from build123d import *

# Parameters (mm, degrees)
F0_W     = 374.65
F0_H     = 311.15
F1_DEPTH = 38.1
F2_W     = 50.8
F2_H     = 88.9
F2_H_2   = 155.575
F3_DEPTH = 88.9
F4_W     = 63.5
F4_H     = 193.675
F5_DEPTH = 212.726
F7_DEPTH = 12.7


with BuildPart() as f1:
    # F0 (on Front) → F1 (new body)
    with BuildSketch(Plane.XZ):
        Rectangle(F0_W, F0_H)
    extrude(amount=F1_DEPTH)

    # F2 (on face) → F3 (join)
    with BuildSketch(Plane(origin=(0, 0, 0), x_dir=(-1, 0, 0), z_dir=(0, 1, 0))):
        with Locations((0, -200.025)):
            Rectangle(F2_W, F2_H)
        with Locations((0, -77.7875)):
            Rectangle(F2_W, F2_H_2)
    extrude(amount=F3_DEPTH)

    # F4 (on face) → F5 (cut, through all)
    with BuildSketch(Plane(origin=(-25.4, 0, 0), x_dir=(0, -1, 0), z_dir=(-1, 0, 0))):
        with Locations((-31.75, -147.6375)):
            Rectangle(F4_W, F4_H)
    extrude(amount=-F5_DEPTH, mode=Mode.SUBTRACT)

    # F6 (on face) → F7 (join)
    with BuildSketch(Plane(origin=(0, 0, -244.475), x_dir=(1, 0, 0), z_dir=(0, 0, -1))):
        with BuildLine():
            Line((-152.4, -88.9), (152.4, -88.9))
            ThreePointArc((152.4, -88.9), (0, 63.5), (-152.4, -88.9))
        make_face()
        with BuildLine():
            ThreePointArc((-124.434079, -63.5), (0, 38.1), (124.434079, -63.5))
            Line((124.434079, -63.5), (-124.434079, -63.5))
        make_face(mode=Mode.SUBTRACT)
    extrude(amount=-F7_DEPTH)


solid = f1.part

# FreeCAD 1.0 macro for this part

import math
import FreeCAD as App
import Part
import Sketcher
from FreeCAD import Vector
Q = App.Units.Quantity


def add_polygon(sketch, points):
    """Adds a closed chain of lines whose ends are joined by coincident constraints."""
    first, n = sketch.GeometryCount, len(points)
    for a, b in zip(points, points[1:] + points[:1]):
        sketch.addGeometry(Part.LineSegment(App.Vector(*a, 0), App.Vector(*b, 0)), False)
    for i in range(n):
        sketch.addConstraint(Sketcher.Constraint("Coincident", first + i, 2, first + (i + 1) % n, 1))

doc = App.newDocument("Part")
body = doc.addObject("PartDesign::Body", "Body")

sketch1 = body.newObject("Sketcher::SketchObject", "Sketch")
sketch1.AttachmentSupport = (doc.getObject("XZ_Plane"), [""])
sketch1.MapMode = "FlatFace"
add_polygon(sketch1, [(-187.325, 155.575), (-187.325, -155.575), (187.325, -155.575), (187.325, 155.575)])
sketch1.addConstraint(Sketcher.Constraint("Vertical", 0))
sketch1.addConstraint(Sketcher.Constraint("Horizontal", 1))
sketch1.addConstraint(Sketcher.Constraint("Vertical", 2))
sketch1.addConstraint(Sketcher.Constraint("Horizontal", 3))
sketch1.addConstraint(Sketcher.Constraint("Symmetric", 0, 2, 2, 2, -1, 1))
sketch1.addConstraint(Sketcher.Constraint("DistanceX", 1, 1, 1, 2, Q("14.75 in")))
sketch1.addConstraint(Sketcher.Constraint("DistanceY", 0, 2, 0, 1, Q("12.25 in")))
pad1 = body.newObject("PartDesign::Pad", "Pad")
pad1.Profile = sketch1
pad1.Length = Q("1.5 in")

sketch2 = body.newObject("Sketcher::SketchObject", "Sketch001")
sketch2.AttachmentSupport = (doc.getObject("XZ_Plane"), [""])
sketch2.MapMode = "FlatFace"
add_polygon(sketch2, [(25.4, -244.475), (-25.4, -244.475), (-25.4, 0), (25.4, 0)])
sketch2.addConstraint(Sketcher.Constraint("Horizontal", 0))
sketch2.addConstraint(Sketcher.Constraint("Vertical", 1))
sketch2.addConstraint(Sketcher.Constraint("Horizontal", 2))
sketch2.addConstraint(Sketcher.Constraint("Vertical", 3))
sketch2.addConstraint(Sketcher.Constraint("Symmetric", 1, 2, 2, 2, -1, 1))
sketch2.addConstraint(Sketcher.Constraint("DistanceX", 0, 2, 0, 1, Q("2 in")))
sketch2.addConstraint(Sketcher.Constraint("DistanceY", 1, 1, 1, 2, Q("9.625 in")))
pad2 = body.newObject("PartDesign::Pad", "Pad001")
pad2.Profile = sketch2
pad2.Length = Q("3.5 in")
pad2.Reversed = True

sketch3 = body.newObject("Sketcher::SketchObject", "Sketch002")
sketch3.AttachmentSupport = (doc.getObject("YZ_Plane"), [""])
sketch3.MapMode = "FlatFace"
sketch3.AttachmentOffset = App.Placement(Vector(0, 0, -1 * 25.4), App.Rotation())
add_polygon(sketch3, [(63.5, -50.8), (63.5, -244.475), (0, -244.475), (0, -50.8)])
sketch3.addConstraint(Sketcher.Constraint("Vertical", 0))
sketch3.addConstraint(Sketcher.Constraint("Horizontal", 1))
sketch3.addConstraint(Sketcher.Constraint("Vertical", 2))
sketch3.addConstraint(Sketcher.Constraint("Horizontal", 3))
sketch3.addConstraint(Sketcher.Constraint("PointOnObject", 1, 2, -2))
sketch3.addConstraint(Sketcher.Constraint("DistanceX", 1, 2, 1, 1, Q("2.5 in")))
sketch3.addConstraint(Sketcher.Constraint("DistanceY", 2, 2, -1, 1, Q("2 in")))
sketch3.addConstraint(Sketcher.Constraint("DistanceY", 0, 2, 0, 1, Q("7.625 in")))
pocket1 = body.newObject("PartDesign::Pocket", "Pocket")
pocket1.Profile = sketch3
pocket1.Type = "ThroughAll"
pocket1.Reversed = True

sketch4 = body.newObject("Sketcher::SketchObject", "Sketch003")
sketch4.AttachmentSupport = (doc.getObject("XY_Plane"), [""])
sketch4.MapMode = "FlatFace"
sketch4.AttachmentOffset = App.Placement(Vector(0, 0, -9.625 * 25.4), App.Rotation())
sketch4.addGeometry(Part.LineSegment(Vector(-152.4, 88.9, 0), Vector(152.4, 88.9, 0)), False)
sketch4.addGeometry(Part.ArcOfCircle(Part.Circle(Vector(0, 88.9, 0), Vector(0, 0, 1), 152.4), math.radians(180), math.radians(360)), False)
sketch4.addGeometry(Part.LineSegment(Vector(124.434079, 63.5, 0), Vector(-124.434079, 63.5, 0)), False)
sketch4.addGeometry(Part.ArcOfCircle(Part.Circle(Vector(0, 88.9, 0), Vector(0, 0, 1), 127), math.radians(-168.463041), math.radians(-11.536959)), False)
sketch4.addConstraint(Sketcher.Constraint("Coincident", 0, 1, 1, 1))
sketch4.addConstraint(Sketcher.Constraint("Coincident", 1, 2, 0, 2))
sketch4.addConstraint(Sketcher.Constraint("Coincident", 2, 1, 3, 2))
sketch4.addConstraint(Sketcher.Constraint("Coincident", 3, 1, 2, 2))
sketch4.addConstraint(Sketcher.Constraint("Horizontal", 0))
sketch4.addConstraint(Sketcher.Constraint("Horizontal", 2))
sketch4.addConstraint(Sketcher.Constraint("Coincident", 3, 3, 1, 3))
sketch4.addConstraint(Sketcher.Constraint("PointOnObject", 1, 3, -2))
sketch4.addConstraint(Sketcher.Constraint("Horizontal", 3, 3, 0, 1))
sketch4.addConstraint(Sketcher.Constraint("Radius", 1, Q("6 in")))
sketch4.addConstraint(Sketcher.Constraint("Radius", 3, Q("5 in")))
sketch4.addConstraint(Sketcher.Constraint("DistanceY", 2, 1, 1, 2, Q("1 in")))
sketch4.addConstraint(Sketcher.Constraint("DistanceY", -1, 1, 1, 3, Q("3.5 in")))
pad3 = body.newObject("PartDesign::Pad", "Pad002")
pad3.Profile = sketch4
pad3.Length = Q("0.5 in")

doc.recompute()
